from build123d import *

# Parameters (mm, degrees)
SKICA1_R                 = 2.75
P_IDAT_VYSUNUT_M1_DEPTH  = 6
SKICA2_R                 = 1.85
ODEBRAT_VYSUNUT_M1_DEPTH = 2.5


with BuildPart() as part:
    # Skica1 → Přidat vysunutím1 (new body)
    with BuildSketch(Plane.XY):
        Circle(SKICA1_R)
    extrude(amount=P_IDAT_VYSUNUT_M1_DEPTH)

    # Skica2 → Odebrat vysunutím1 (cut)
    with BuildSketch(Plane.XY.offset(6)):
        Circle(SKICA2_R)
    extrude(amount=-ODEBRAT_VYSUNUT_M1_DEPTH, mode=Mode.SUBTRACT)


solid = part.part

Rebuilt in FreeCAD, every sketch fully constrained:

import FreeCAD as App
import Part
import Sketcher

V = App.Vector

doc = App.newDocument("Part")
body = doc.addObject("PartDesign::Body", "Body")

# Sketch on XY plane
sketch1 = body.newObject("Sketcher::SketchObject", "Sketch")
sketch1.AttachmentSupport = (doc.getObject("XY_Plane"), [""])
sketch1.MapMode = "FlatFace"
sketch1.addGeometry(Part.Circle(V(0, 0, 0), V(0, 0, 1), 2.75), False)
sketch1.addConstraint(Sketcher.Constraint("Coincident", 0, 3, -1, 1))
sketch1.addConstraint(Sketcher.Constraint("Diameter", 0, 5.5))
pad1 = body.newObject("PartDesign::Pad", "Pad")
pad1.Profile = sketch1
pad1.Length = 6

# Sketch on XY plane
sketch2 = body.newObject("Sketcher::SketchObject", "Sketch001")
sketch2.AttachmentSupport = (doc.getObject("XY_Plane"), [""])
sketch2.MapMode = "FlatFace"
sketch2.AttachmentOffset = App.Placement(V(0, 0, 6), App.Rotation())
sketch2.addGeometry(Part.Circle(V(0, 0, 0), V(0, 0, 1), 1.85), False)
sketch2.addConstraint(Sketcher.Constraint("Coincident", 0, 3, -1, 1))
sketch2.addConstraint(Sketcher.Constraint("Diameter", 0, 3.7))
pocket1 = body.newObject("PartDesign::Pocket", "Pocket")
pocket1.Profile = sketch2
pocket1.Length = 2.5

doc.recompute()
